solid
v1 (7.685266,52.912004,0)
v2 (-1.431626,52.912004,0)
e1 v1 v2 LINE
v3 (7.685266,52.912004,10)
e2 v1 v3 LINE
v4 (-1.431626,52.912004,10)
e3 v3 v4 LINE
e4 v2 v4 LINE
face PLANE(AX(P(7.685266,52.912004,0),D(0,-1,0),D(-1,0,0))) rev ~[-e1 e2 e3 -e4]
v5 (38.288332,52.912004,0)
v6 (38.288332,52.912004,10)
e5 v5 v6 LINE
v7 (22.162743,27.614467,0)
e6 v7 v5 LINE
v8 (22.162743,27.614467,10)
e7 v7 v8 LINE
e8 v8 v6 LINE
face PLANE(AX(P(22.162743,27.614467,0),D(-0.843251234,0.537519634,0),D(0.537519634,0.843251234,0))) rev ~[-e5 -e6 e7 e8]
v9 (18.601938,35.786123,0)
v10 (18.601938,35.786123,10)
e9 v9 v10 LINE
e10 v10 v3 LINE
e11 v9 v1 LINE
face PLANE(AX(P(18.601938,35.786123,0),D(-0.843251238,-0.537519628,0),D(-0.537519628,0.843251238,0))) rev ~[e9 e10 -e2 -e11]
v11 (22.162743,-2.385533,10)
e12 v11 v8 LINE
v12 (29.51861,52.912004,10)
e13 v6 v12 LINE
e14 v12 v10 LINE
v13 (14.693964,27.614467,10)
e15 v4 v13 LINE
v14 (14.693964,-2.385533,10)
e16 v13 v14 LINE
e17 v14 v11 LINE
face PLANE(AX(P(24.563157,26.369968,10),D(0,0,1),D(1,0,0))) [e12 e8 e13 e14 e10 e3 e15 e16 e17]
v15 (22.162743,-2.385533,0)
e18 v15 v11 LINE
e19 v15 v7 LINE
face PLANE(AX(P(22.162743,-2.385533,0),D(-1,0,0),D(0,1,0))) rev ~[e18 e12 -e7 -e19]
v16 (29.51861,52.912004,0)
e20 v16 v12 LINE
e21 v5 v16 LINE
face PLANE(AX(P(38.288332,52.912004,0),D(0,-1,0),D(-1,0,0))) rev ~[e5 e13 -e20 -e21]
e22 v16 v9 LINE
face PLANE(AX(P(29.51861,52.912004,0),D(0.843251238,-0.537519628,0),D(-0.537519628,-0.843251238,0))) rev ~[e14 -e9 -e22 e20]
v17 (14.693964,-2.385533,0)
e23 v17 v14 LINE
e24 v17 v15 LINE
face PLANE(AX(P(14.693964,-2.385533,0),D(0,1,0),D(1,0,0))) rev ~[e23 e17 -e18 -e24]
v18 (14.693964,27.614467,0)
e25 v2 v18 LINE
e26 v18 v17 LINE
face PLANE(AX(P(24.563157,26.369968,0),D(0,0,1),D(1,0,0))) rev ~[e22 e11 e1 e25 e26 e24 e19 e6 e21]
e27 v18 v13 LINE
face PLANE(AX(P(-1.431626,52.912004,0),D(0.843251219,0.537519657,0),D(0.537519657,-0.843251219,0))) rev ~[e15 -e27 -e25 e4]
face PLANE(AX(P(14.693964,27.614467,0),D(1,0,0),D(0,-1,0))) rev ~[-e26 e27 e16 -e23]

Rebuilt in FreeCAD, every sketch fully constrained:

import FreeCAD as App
import Part
import Sketcher

V = App.Vector


def add_polygon(sketch, points):
    """Adds a closed chain of lines whose ends are joined by coincident constraints."""
    first, n = sketch.GeometryCount, len(points)
    for a, b in zip(points, points[1:] + points[:1]):
        sketch.addGeometry(Part.LineSegment(App.Vector(*a, 0), App.Vector(*b, 0)), False)
    for i in range(n):
        sketch.addConstraint(Sketcher.Constraint("Coincident", first + i, 2, first + (i + 1) % n, 1))

doc = App.newDocument("Part")
body = doc.addObject("PartDesign::Body", "Body")

# Sketch on XY plane
sketch1 = body.newObject("Sketcher::SketchObject", "Sketch")
sketch1.AttachmentSupport = (doc.getObject("XY_Plane"), [""])
sketch1.MapMode = "FlatFace"
add_polygon(sketch1, [(22, -2), (22, 28), (38, 53), (30, 53), (19, 36), (8, 53), (-1, 53), (15, 28), (15, -2)])  # lines 0-8
sketch1.addConstraint([
    Sketcher.Constraint("Vertical", 0),
    Sketcher.Constraint("Horizontal", 2),
    Sketcher.Constraint("Horizontal", 5),
    Sketcher.Constraint("Vertical", 7),
    Sketcher.Constraint("Horizontal", 8),
    Sketcher.Constraint("Parallel", 1, 3),
    Sketcher.Constraint("Parallel", 4, 6),
    Sketcher.Constraint("Horizontal", 2, 2, 4, 2),
    Sketcher.Constraint("Horizontal", 0, 2, 6, 2),
    Sketcher.Constraint("Equal", 3, 4),
    Sketcher.Constraint("DistanceY", 0, 1, 0, 2, 30.0),
    Sketcher.Constraint("Distance", 1, 30.0),
    Sketcher.Constraint("DistanceX", 2, 2, 2, 1, 8.769722),
    Sketcher.Constraint("DistanceX", 8, 1, 8, 2, 7.468779),
    Sketcher.Constraint("DistanceX", 5, 2, 5, 1, 9.116892),
    Sketcher.Constraint("DistanceX", -1, 1, 1, 2, 38.288332),
    Sketcher.Constraint("DistanceX", -1, 1, 3, 2, 18.601938),
    Sketcher.Constraint("DistanceY", -1, 1, 0, 2, 27.614467),
])
pad1 = body.newObject("PartDesign::Pad", "Pad")
pad1.Profile = sketch1
pad1.Length = 10

doc.recompute()
